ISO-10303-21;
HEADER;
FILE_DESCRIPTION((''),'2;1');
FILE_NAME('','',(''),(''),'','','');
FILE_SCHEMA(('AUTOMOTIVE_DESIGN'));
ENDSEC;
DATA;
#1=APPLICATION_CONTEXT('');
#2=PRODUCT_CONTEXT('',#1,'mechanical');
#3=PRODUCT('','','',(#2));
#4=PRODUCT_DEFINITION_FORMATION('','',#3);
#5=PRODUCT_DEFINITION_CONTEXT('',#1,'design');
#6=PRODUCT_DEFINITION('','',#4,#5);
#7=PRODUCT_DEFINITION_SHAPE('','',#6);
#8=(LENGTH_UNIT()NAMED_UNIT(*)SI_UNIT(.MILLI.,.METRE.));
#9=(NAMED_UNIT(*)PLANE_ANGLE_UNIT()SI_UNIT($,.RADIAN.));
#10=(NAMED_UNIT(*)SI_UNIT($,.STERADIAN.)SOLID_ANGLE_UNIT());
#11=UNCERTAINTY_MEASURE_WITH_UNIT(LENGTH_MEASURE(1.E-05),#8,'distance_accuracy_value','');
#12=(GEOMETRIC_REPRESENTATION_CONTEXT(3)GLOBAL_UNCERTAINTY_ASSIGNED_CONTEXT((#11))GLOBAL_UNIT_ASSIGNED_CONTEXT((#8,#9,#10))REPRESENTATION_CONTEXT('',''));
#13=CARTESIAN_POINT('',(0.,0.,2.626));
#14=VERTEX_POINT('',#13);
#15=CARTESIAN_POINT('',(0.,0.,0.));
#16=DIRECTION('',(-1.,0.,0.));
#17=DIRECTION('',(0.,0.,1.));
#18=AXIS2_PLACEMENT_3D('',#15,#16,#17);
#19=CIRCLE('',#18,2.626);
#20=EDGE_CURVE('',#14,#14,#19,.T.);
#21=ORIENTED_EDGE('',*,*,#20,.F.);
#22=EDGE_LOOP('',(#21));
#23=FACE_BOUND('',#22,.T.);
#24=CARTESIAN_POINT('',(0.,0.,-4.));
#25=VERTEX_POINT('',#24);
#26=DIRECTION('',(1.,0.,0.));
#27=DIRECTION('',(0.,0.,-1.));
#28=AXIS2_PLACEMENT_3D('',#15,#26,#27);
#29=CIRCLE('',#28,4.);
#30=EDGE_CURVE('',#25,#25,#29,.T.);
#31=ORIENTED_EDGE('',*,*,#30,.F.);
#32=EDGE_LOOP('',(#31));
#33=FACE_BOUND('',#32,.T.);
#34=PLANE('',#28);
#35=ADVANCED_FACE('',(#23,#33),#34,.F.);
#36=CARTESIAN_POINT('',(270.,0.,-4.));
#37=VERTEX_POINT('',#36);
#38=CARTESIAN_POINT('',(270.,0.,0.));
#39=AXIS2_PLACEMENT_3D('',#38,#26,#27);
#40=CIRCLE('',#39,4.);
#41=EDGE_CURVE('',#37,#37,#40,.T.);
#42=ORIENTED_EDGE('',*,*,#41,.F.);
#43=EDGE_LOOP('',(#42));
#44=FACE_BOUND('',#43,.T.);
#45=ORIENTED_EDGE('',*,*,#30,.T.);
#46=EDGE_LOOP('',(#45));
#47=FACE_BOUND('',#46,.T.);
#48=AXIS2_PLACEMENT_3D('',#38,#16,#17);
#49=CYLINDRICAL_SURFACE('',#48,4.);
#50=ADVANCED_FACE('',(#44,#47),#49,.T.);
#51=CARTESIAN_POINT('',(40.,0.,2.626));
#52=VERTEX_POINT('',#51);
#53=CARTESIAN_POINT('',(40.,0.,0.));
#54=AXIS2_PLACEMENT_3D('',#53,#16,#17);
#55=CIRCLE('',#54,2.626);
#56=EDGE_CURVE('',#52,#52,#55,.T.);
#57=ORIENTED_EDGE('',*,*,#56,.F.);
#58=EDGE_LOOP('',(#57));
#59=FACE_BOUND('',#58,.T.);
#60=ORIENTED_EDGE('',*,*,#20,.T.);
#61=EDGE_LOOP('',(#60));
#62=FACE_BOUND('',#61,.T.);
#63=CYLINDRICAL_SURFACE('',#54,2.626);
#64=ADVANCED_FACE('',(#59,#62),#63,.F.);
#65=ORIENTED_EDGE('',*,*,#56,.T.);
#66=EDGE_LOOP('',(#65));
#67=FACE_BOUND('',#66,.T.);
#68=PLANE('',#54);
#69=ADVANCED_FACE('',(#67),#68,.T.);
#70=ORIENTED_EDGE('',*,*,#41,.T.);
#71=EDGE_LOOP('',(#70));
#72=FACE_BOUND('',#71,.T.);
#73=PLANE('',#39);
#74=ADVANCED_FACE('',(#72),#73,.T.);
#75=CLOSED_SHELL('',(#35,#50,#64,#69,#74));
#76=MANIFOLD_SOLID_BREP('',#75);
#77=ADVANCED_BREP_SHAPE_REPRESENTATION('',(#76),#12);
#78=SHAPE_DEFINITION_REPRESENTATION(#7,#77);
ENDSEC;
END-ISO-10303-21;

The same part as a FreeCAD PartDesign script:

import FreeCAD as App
import Part
import Sketcher
from FreeCAD import Vector
Q = App.Units.Quantity

doc = App.newDocument("Part")
params = doc.addObject("Spreadsheet::Sheet", "Params")
for row, (alias, value) in enumerate([
    ("sketch1_diameter", "8 mm"),
    ("pad1_length", "270 mm"),
    ("pocket1_length", "40 mm"),
], start=1):
    params.set(f"A{row}", alias)
    params.set(f"B{row}", "=" + value)
    params.setAlias(f"B{row}", alias)

body = doc.addObject("PartDesign::Body", "Body")

sketch1 = body.newObject("Sketcher::SketchObject", "Sketch")
sketch1.AttachmentSupport = (doc.getObject("YZ_Plane"), [""])
sketch1.MapMode = "FlatFace"
sketch1.addGeometry(Part.Circle(Vector(0, 0, 0), Vector(0, 0, 1), 4), False)
sketch1.addConstraint([
    Sketcher.Constraint("Coincident", 0, 3, -1, 1),
    Sketcher.Constraint("Diameter", 0, Q("8 mm")),
])
sketch1.setExpression("Constraints[1]", "Params.sketch1_diameter")
pad1 = body.newObject("PartDesign::Pad", "Pad")
pad1.Profile = sketch1
pad1.setExpression("Length", "Params.pad1_length")

sketch2 = body.newObject("Sketcher::SketchObject", "Sketch001")
sketch2.AttachmentSupport = (doc.getObject("YZ_Plane"), [""])
sketch2.MapMode = "FlatFace"
sketch2.addGeometry(Part.Circle(Vector(0, 0, 0), Vector(0, 0, 1), 2.626), False)
sketch2.addConstraint([
    Sketcher.Constraint("Coincident", 0, 3, -1, 1),
    Sketcher.Constraint("Diameter", 0, Q("5.252 mm")),
])
pocket1 = body.newObject("PartDesign::Pocket", "Pocket")
pocket1.Profile = sketch2
pocket1.setExpression("Length", "Params.pocket1_length")
pocket1.Reversed = True

doc.recompute()
